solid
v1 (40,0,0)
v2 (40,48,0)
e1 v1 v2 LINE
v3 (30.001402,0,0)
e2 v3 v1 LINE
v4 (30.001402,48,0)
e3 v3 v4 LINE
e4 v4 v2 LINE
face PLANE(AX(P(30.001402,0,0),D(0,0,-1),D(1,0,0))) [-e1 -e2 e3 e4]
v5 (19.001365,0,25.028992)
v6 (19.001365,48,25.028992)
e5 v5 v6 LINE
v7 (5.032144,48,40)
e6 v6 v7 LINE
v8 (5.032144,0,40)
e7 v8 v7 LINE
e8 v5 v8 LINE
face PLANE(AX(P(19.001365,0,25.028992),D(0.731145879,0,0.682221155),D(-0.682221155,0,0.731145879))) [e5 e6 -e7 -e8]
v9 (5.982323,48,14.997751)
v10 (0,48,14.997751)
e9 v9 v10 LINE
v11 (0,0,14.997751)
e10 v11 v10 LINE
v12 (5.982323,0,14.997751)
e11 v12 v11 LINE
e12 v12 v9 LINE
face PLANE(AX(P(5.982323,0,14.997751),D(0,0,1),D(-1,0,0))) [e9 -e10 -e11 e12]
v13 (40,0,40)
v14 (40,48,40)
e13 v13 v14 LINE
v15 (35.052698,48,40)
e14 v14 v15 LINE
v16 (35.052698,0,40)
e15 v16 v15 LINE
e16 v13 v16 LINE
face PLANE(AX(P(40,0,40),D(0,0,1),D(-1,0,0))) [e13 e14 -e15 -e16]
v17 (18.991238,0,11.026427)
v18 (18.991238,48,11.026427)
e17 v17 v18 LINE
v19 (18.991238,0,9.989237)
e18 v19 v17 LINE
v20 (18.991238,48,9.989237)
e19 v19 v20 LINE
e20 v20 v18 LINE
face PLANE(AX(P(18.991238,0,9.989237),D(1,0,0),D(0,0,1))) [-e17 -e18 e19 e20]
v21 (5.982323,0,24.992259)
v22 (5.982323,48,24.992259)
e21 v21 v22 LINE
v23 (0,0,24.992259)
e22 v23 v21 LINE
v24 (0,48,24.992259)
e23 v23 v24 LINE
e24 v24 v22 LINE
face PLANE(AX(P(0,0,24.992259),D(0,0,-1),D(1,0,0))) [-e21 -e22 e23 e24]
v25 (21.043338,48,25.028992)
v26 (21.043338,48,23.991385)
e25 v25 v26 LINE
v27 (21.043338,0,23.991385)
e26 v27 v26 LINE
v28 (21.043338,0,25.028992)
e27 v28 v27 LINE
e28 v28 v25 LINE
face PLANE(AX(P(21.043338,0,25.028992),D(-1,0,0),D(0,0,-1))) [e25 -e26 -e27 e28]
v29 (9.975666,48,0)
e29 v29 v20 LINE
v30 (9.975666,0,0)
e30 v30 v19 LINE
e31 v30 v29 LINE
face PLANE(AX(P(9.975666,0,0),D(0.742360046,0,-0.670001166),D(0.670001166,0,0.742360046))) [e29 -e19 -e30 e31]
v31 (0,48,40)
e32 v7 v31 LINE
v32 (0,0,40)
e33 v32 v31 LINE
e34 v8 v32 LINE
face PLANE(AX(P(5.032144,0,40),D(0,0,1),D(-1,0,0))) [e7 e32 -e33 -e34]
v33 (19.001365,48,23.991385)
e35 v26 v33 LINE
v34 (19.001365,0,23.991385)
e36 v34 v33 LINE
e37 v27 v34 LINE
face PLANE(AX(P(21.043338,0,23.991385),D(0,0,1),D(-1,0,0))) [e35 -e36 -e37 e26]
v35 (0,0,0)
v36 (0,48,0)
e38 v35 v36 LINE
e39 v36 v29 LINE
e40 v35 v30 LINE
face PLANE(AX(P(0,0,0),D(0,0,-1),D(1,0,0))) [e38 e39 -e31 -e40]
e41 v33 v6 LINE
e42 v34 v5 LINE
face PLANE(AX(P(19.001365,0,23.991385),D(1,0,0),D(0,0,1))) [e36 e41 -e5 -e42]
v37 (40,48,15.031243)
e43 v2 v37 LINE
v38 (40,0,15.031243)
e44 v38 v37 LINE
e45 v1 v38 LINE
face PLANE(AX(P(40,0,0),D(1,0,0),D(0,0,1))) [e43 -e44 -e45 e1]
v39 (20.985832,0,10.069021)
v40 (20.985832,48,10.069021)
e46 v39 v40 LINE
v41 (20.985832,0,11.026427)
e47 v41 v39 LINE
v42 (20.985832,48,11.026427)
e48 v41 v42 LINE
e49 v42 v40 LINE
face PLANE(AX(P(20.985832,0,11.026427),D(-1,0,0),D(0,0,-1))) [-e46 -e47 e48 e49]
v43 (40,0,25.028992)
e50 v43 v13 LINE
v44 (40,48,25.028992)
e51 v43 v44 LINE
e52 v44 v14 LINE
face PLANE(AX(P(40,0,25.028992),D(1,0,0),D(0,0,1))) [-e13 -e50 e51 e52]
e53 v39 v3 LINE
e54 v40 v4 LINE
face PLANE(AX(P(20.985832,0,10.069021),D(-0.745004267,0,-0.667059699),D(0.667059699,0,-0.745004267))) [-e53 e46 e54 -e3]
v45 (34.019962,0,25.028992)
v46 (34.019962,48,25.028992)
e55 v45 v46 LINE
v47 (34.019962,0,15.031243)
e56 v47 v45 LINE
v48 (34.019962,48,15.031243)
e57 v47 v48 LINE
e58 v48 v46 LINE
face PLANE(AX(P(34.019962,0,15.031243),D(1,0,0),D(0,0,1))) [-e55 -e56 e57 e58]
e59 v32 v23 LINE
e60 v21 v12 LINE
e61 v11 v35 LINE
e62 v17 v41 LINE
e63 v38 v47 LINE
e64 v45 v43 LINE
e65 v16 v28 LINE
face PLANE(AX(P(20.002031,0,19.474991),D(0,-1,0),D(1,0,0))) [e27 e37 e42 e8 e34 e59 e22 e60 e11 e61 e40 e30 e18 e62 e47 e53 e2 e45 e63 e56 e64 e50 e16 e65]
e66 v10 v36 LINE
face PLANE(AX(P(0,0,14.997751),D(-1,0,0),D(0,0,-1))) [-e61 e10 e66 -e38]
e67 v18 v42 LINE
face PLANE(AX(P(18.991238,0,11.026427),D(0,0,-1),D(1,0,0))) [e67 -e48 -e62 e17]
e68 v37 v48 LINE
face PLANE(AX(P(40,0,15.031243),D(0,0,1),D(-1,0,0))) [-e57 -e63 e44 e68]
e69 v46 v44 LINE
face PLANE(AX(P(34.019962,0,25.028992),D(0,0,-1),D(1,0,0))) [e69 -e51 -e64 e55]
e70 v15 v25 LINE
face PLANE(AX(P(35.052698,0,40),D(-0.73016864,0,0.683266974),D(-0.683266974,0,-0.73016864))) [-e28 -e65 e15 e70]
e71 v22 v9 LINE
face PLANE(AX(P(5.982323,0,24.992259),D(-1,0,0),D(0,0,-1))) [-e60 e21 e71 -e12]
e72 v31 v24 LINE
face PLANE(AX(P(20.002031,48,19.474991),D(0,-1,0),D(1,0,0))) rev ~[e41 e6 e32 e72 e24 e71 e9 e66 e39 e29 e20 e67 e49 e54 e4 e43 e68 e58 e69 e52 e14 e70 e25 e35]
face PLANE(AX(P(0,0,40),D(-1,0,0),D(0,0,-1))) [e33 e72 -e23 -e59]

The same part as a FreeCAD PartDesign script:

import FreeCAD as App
import Part
import Sketcher
from FreeCAD import Vector


def add_polygon(sketch, points):
    """Adds a closed chain of lines whose ends are joined by coincident constraints."""
    first, n = sketch.GeometryCount, len(points)
    for a, b in zip(points, points[1:] + points[:1]):
        sketch.addGeometry(Part.LineSegment(App.Vector(*a, 0), App.Vector(*b, 0)), False)
    for i in range(n):
        sketch.addConstraint(Sketcher.Constraint("Coincident", first + i, 2, first + (i + 1) % n, 1))

doc = App.newDocument("Part")
body = doc.addObject("PartDesign::Body", "Body")

sketch1 = body.newObject("Sketcher::SketchObject", "Sketch")
sketch1.AttachmentSupport = (doc.getObject("XZ_Plane"), [""])
sketch1.MapMode = "FlatFace"
add_polygon(sketch1, [(0, 14.997751), (0, 0), (9.975666, 0), (18.991238, 9.989237), (18.991238, 11.026427), (20.985832, 11.026427), (20.985832, 10.069021), (30.001402, 0), (40, 0), (40, 15.031243), (34.019962, 15.031243), (34.019962, 25.028992), (40, 25.028992), (40, 40), (35.052698, 40), (21.043338, 25.028992), (21.043338, 23.991385), (19.001365, 23.991385), (19.001365, 25.028992), (5.032144, 40), (0, 40), (0, 24.992259), (5.982323, 24.992259), (5.982323, 14.997751)])
sketch1.addConstraint([
    Sketcher.Constraint("Vertical", 0),
    Sketcher.Constraint("Horizontal", 1),
    Sketcher.Constraint("Vertical", 3),
    Sketcher.Constraint("Horizontal", 4),
    Sketcher.Constraint("Vertical", 5),
    Sketcher.Constraint("Horizontal", 7),
    Sketcher.Constraint("Vertical", 8),
    Sketcher.Constraint("Horizontal", 9),
    Sketcher.Constraint("Vertical", 10),
    Sketcher.Constraint("Horizontal", 11),
    Sketcher.Constraint("Vertical", 12),
    Sketcher.Constraint("Horizontal", 13),
    Sketcher.Constraint("Vertical", 15),
    Sketcher.Constraint("Horizontal", 16),
    Sketcher.Constraint("Vertical", 17),
    Sketcher.Constraint("Horizontal", 19),
    Sketcher.Constraint("Vertical", 20),
    Sketcher.Constraint("Horizontal", 21),
    Sketcher.Constraint("Vertical", 22),
    Sketcher.Constraint("Horizontal", 23),
    Sketcher.Constraint("Coincident", 0, 2, -1, 1),
    Sketcher.Constraint("PointOnObject", 6, 2, -1),
    Sketcher.Constraint("PointOnObject", 19, 2, -2),
    Sketcher.Constraint("Horizontal", 11, 2, 14, 2),
    Sketcher.Constraint("Horizontal", 14, 2, 17, 2),
    Sketcher.Constraint("Horizontal", 13, 2, 18, 2),
    Sketcher.Constraint("Vertical", 8, 2, 11, 2),
    Sketcher.Constraint("DistanceX", -1, 1, 7, 2, 40.0),
    Sketcher.Constraint("DistanceY", -1, 1, 12, 2, 40.0),
    Sketcher.Constraint("DistanceX", 7, 1, 7, 2, 9.998598),
    Sketcher.Constraint("DistanceX", 9, 2, 9, 1, 5.980038),
    Sketcher.Constraint("DistanceY", 0, 2, 0, 1, 14.997751),
    Sketcher.Constraint("DistanceY", 3, 1, 3, 2, 1.03719),
    Sketcher.Constraint("DistanceY", 10, 1, 10, 2, 9.997749),
    Sketcher.Constraint("DistanceY", 12, 1, 12, 2, 14.971008),
    Sketcher.Constraint("DistanceY", 20, 2, 20, 1, 15.007741),
    Sketcher.Constraint("DistanceX", 3, 2, 14, 2, 2.0521),
    Sketcher.Constraint("Distance", 18, 20.476089),
    Sketcher.Constraint("DistanceX", 1, 1, 1, 2, 9.975666),
    Sketcher.Constraint("DistanceX", 4, 1, 4, 2, 1.994594),
    Sketcher.Constraint("DistanceX", 13, 2, 13, 1, 4.947302),
    Sketcher.Constraint("DistanceX", 16, 2, 16, 1, 2.041973),
    Sketcher.Constraint("DistanceX", 19, 2, 19, 1, 5.032144),
    Sketcher.Constraint("DistanceX", 21, 1, 21, 2, 5.982323),
    Sketcher.Constraint("DistanceY", 5, 2, 5, 1, 0.957406),
    Sketcher.Constraint("DistanceY", 15, 2, 15, 1, 1.037607),
    Sketcher.Constraint("DistanceY", -1, 1, 5, 2, 10.069021),
])
pad1 = body.newObject("PartDesign::Pad", "Pad")
pad1.Profile = sketch1
pad1.Length = 48
pad1.Reversed = True

doc.recompute()
